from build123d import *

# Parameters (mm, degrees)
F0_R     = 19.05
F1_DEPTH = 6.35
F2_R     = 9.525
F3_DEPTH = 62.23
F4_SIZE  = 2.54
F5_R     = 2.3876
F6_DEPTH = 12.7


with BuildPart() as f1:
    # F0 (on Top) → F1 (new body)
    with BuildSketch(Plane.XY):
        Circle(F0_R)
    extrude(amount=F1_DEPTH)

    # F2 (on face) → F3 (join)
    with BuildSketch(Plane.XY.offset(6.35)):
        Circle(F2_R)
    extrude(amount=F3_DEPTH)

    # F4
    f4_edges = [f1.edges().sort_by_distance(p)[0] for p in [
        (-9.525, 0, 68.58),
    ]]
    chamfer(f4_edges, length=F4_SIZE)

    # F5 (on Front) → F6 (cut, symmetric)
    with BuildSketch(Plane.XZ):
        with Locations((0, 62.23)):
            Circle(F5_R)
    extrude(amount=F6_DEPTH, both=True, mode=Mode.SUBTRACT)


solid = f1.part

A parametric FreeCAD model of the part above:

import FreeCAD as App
import Part
import Sketcher

V = App.Vector
Q = App.Units.Quantity


def edges_at(feature, points):
    """Names of the edges that pass closest to the given points."""
    edges = feature.Shape.Edges
    near = lambda p: min(range(len(edges)), key=lambda i: edges[i].distToShape(Part.Vertex(*p))[0])
    return sorted({f"Edge{near(p) + 1}" for p in points})

doc = App.newDocument("Part")
body = doc.addObject("PartDesign::Body", "Body")

sketch1 = body.newObject("Sketcher::SketchObject", "Sketch")
sketch1.AttachmentSupport = (doc.getObject("XY_Plane"), [""])
sketch1.MapMode = "FlatFace"
sketch1.addGeometry(Part.Circle(V(0, 0, 0), V(0, 0, 1), 19), False)
sketch1.addConstraint(Sketcher.Constraint("Coincident", 0, 3, -1, 1))
sketch1.addConstraint(Sketcher.Constraint("Diameter", 0, Q("1.5 in")))
pad1 = body.newObject("PartDesign::Pad", "Pad")
pad1.Profile = sketch1
pad1.Length = Q("0.25 in")

sketch2 = body.newObject("Sketcher::SketchObject", "Sketch001")
sketch2.AttachmentSupport = (doc.getObject("XY_Plane"), [""])
sketch2.MapMode = "FlatFace"
sketch2.AttachmentOffset = App.Placement(V(0, 0, 0.25 * 25.4), App.Rotation())
sketch2.addGeometry(Part.Circle(V(0, 0, 0), V(0, 0, 1), 10), False)
sketch2.addConstraint(Sketcher.Constraint("Coincident", 0, 3, -1, 1))
sketch2.addConstraint(Sketcher.Constraint("Diameter", 0, Q("0.75 in")))
pad2 = body.newObject("PartDesign::Pad", "Pad001")
pad2.Profile = sketch2
pad2.Length = Q("2.45 in")
doc.recompute()

chamfer = body.newObject("PartDesign::Chamfer", "Chamfer")
chamfer.Base = (pad2, edges_at(pad2, [(-9.525, 0, 68.58)]))
chamfer.Size = Q("0.1 in")

sketch3 = body.newObject("Sketcher::SketchObject", "Sketch002")
sketch3.AttachmentSupport = (doc.getObject("XZ_Plane"), [""])
sketch3.MapMode = "FlatFace"
sketch3.addGeometry(Part.Circle(V(0, 62.2, 0), V(0, 0, 1), 2.4), False)
sketch3.addConstraint(Sketcher.Constraint("PointOnObject", 0, 3, -2))
sketch3.addConstraint(Sketcher.Constraint("Diameter", 0, Q("0.188 in")))
sketch3.addConstraint(Sketcher.Constraint("DistanceY", -1, 1, 0, 3, Q("2.45 in")))
pocket1 = body.newObject("PartDesign::Pocket", "Pocket")
pocket1.Profile = sketch3
pocket1.Length = Q("1 in")
pocket1.Midplane = True

doc.recompute()
